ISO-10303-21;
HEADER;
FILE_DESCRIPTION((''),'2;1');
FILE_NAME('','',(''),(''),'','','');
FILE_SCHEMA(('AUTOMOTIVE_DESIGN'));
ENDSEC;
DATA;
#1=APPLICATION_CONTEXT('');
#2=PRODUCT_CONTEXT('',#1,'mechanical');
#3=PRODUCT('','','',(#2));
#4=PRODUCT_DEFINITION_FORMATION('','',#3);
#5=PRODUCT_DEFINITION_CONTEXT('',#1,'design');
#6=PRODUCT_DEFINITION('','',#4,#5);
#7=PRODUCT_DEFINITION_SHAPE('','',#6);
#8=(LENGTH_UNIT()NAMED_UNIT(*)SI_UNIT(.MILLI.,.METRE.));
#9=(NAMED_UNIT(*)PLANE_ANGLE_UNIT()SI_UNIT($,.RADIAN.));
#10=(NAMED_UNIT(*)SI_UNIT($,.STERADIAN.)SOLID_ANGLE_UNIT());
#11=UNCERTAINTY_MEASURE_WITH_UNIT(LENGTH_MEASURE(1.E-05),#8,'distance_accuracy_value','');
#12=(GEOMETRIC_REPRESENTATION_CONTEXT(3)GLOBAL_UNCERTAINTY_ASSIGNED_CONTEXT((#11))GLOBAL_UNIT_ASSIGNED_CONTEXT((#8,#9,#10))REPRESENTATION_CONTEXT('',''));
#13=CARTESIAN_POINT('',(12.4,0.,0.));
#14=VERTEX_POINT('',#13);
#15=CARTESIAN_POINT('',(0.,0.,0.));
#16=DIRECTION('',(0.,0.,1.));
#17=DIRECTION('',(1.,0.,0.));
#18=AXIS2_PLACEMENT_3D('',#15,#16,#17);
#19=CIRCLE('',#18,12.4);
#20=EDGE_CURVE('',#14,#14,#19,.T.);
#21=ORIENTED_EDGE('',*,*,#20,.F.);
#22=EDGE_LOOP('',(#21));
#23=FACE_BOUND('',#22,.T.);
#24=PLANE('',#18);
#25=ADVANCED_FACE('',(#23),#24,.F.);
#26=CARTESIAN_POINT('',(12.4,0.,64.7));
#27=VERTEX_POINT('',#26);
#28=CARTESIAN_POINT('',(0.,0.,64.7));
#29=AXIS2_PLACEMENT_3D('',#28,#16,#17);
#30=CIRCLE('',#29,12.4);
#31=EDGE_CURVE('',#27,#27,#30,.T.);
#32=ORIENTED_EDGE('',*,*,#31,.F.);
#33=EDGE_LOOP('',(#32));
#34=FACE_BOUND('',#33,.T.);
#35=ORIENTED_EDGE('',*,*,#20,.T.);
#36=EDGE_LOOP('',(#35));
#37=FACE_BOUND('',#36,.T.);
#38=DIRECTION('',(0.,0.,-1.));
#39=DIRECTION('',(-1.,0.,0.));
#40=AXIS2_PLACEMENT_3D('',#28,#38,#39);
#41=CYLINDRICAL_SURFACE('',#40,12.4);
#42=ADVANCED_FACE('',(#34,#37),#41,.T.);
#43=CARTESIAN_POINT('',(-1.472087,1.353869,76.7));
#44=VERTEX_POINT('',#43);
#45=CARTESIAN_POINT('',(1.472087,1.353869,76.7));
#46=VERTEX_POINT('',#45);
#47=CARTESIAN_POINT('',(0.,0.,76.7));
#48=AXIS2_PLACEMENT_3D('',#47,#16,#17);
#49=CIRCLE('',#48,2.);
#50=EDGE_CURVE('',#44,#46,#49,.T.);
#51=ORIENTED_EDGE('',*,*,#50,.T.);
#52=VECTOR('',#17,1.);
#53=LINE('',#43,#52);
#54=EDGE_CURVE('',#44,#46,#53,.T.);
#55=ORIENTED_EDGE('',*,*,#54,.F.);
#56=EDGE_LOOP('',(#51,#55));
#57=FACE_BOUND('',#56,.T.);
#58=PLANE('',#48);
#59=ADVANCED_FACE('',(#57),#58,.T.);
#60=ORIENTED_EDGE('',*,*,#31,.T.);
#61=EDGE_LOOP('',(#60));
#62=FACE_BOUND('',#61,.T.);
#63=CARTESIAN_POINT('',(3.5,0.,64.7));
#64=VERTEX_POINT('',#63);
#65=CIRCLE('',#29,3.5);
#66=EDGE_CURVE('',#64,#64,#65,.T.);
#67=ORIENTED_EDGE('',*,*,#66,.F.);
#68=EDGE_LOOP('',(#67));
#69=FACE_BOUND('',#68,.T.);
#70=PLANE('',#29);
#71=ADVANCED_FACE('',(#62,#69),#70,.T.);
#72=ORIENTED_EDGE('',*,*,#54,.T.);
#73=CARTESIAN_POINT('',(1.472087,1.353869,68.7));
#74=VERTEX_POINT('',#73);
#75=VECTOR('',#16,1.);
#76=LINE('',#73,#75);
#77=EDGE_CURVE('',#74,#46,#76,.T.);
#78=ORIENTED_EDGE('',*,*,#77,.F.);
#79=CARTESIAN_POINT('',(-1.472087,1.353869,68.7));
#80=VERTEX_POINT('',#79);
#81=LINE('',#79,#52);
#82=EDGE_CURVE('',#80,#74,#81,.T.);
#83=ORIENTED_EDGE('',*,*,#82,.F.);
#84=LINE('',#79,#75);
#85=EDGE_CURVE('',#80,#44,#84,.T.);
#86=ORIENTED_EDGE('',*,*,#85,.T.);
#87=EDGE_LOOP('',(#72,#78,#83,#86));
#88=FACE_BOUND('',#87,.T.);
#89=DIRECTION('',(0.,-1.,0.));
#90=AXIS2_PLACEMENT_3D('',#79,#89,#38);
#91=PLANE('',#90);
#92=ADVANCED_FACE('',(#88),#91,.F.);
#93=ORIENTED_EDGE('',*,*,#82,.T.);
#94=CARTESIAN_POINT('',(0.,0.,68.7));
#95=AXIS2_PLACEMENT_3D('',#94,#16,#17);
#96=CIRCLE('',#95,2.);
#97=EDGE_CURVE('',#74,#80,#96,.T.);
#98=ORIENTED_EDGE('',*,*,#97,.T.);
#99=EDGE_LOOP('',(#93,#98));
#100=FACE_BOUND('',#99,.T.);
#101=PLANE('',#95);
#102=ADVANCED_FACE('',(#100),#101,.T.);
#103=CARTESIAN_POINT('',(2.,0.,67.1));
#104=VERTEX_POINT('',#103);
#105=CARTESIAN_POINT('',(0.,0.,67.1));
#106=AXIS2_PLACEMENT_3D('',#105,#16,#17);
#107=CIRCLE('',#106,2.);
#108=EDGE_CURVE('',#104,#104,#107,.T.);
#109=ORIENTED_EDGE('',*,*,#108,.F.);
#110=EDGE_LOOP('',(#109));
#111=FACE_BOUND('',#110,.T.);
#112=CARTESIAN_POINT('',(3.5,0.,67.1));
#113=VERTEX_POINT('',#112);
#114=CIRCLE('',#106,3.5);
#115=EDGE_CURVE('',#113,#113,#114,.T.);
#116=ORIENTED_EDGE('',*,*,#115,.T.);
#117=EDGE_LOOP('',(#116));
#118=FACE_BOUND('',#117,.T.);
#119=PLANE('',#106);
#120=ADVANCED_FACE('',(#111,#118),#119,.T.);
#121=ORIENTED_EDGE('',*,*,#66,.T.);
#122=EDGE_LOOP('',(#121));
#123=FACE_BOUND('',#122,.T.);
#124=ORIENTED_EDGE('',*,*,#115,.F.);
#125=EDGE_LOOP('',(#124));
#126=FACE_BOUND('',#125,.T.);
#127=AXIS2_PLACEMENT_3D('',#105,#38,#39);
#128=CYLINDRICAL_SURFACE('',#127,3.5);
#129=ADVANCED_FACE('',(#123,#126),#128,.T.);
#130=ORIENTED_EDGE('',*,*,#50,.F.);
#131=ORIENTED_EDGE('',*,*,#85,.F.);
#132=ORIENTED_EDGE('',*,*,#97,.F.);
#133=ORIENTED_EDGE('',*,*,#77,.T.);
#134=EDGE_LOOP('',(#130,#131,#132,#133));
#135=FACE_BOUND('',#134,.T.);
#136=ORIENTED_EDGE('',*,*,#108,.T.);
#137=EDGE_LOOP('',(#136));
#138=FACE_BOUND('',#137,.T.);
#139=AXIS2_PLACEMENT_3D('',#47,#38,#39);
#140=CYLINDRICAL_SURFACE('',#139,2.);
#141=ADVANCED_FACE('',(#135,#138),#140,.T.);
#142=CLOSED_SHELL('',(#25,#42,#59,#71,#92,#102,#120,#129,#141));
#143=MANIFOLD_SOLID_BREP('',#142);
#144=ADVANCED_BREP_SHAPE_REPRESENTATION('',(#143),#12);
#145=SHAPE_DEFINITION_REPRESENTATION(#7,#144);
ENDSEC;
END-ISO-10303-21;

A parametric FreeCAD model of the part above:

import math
import FreeCAD as App
import Part
import Sketcher
Q = App.Units.Quantity

doc = App.newDocument("Part")
body = doc.addObject("PartDesign::Body", "Body")

# Sketch on XY plane
sketch1 = body.newObject("Sketcher::SketchObject", "Sketch")
sketch1.AttachmentSupport = (doc.getObject("XY_Plane"), [""])
sketch1.MapMode = "FlatFace"
sketch1.addGeometry(Part.Circle(App.Vector(0, 0, 0), App.Vector(0, 0, 1), 12), False)
sketch1.addConstraint([
    Sketcher.Constraint("Coincident", 0, 3, -1, 1),
    Sketcher.Constraint("Diameter", 0, Q("24.8 mm")),
])
pad1 = body.newObject("PartDesign::Pad", "Pad")
pad1.Profile = sketch1
pad1.Length = 64.7

# Sketch on XY plane
sketch2 = body.newObject("Sketcher::SketchObject", "Sketch001")
sketch2.AttachmentSupport = (doc.getObject("XY_Plane"), [""])
sketch2.MapMode = "FlatFace"
sketch2.AttachmentOffset = App.Placement(App.Vector(0, 0, 64.7), App.Rotation())
sketch2.addGeometry(Part.Circle(App.Vector(0, 0, 0), App.Vector(0, 0, 1), 3.5), False)
sketch2.addConstraint([
    Sketcher.Constraint("Coincident", 0, 3, -1, 1),
    Sketcher.Constraint("Diameter", 0, Q("7 mm")),
])
pad2 = body.newObject("PartDesign::Pad", "Pad001")
pad2.Profile = sketch2
pad2.Length = 2.4

# Sketch on XY plane
sketch3 = body.newObject("Sketcher::SketchObject", "Sketch002")
sketch3.AttachmentSupport = (doc.getObject("XY_Plane"), [""])
sketch3.MapMode = "FlatFace"
sketch3.AttachmentOffset = App.Placement(App.Vector(0, 0, 67.1), App.Rotation())
sketch3.addGeometry(Part.Circle(App.Vector(0, 0, 0), App.Vector(0, 0, 1), 2), False)
sketch3.addConstraint([
    Sketcher.Constraint("Coincident", 0, 3, -1, 1),
    Sketcher.Constraint("Diameter", 0, Q("4 mm")),
])
pad3 = body.newObject("PartDesign::Pad", "Pad002")
pad3.Profile = sketch3
pad3.Length = 9.6

# Sketch on XY plane
sketch4 = body.newObject("Sketcher::SketchObject", "Sketch003")
sketch4.AttachmentSupport = (doc.getObject("XY_Plane"), [""])
sketch4.MapMode = "FlatFace"
sketch4.AttachmentOffset = App.Placement(App.Vector(0, 0, 76.7), App.Rotation())
sketch4.addGeometry([
    Part.LineSegment(App.Vector(-1.5, 1.4, 0), App.Vector(1.5, 1.4, 0)),
    Part.ArcOfCircle(Part.Circle(App.Vector(0, 0, 0), App.Vector(0, 0, 1), 2), math.radians(43), math.radians(137)),
], False)
sketch4.addConstraint([
    Sketcher.Constraint("Coincident", 0, 1, 1, 2),
    Sketcher.Constraint("Coincident", 1, 1, 0, 2),
    Sketcher.Constraint("Horizontal", 0),
    Sketcher.Constraint("Coincident", 1, 3, -1, 1),
    Sketcher.Constraint("Radius", 1, Q("2 mm")),
    Sketcher.Constraint("DistanceX", 0, 1, 0, 2, Q("2.944174 mm")),
])
pocket1 = body.newObject("PartDesign::Pocket", "Pocket")
pocket1.Profile = sketch4
pocket1.Length = 8

doc.recompute()
